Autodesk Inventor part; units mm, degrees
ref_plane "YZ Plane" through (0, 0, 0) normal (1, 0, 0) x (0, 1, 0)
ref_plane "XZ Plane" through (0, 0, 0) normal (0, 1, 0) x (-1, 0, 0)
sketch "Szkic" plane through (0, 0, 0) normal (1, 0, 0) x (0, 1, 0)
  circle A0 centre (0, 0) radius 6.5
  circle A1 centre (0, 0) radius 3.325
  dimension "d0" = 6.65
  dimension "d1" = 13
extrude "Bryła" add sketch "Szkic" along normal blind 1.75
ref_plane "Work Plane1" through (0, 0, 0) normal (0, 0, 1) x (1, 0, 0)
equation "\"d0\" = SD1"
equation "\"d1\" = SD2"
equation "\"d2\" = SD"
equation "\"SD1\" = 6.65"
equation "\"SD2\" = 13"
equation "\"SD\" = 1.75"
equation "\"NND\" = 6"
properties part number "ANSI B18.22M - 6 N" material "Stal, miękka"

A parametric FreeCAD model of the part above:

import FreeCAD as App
import Part
import Sketcher

V = App.Vector
Q = App.Units.Quantity

doc = App.newDocument("Part")
body = doc.addObject("PartDesign::Body", "Body")

sketch1 = body.newObject("Sketcher::SketchObject", "Sketch")
sketch1.AttachmentSupport = (doc.getObject("YZ_Plane"), [""])
sketch1.MapMode = "FlatFace"
sketch1.addGeometry([
    Part.Circle(V(0, 0, 0), V(0, 0, 1), 6.5),
    Part.Circle(V(0, 0, 0), V(0, 0, 1), 3.3),
], False)
sketch1.addConstraint([
    Sketcher.Constraint("Coincident", 0, 3, -1, 1),
    Sketcher.Constraint("Coincident", 1, 3, -1, 1),
    Sketcher.Constraint("Diameter", 0, Q("13 mm")),
    Sketcher.Constraint("Diameter", 1, Q("6.65 mm")),
])
pad1 = body.newObject("PartDesign::Pad", "Pad")
pad1.Profile = sketch1
pad1.Length = 1.75

doc.recompute()
